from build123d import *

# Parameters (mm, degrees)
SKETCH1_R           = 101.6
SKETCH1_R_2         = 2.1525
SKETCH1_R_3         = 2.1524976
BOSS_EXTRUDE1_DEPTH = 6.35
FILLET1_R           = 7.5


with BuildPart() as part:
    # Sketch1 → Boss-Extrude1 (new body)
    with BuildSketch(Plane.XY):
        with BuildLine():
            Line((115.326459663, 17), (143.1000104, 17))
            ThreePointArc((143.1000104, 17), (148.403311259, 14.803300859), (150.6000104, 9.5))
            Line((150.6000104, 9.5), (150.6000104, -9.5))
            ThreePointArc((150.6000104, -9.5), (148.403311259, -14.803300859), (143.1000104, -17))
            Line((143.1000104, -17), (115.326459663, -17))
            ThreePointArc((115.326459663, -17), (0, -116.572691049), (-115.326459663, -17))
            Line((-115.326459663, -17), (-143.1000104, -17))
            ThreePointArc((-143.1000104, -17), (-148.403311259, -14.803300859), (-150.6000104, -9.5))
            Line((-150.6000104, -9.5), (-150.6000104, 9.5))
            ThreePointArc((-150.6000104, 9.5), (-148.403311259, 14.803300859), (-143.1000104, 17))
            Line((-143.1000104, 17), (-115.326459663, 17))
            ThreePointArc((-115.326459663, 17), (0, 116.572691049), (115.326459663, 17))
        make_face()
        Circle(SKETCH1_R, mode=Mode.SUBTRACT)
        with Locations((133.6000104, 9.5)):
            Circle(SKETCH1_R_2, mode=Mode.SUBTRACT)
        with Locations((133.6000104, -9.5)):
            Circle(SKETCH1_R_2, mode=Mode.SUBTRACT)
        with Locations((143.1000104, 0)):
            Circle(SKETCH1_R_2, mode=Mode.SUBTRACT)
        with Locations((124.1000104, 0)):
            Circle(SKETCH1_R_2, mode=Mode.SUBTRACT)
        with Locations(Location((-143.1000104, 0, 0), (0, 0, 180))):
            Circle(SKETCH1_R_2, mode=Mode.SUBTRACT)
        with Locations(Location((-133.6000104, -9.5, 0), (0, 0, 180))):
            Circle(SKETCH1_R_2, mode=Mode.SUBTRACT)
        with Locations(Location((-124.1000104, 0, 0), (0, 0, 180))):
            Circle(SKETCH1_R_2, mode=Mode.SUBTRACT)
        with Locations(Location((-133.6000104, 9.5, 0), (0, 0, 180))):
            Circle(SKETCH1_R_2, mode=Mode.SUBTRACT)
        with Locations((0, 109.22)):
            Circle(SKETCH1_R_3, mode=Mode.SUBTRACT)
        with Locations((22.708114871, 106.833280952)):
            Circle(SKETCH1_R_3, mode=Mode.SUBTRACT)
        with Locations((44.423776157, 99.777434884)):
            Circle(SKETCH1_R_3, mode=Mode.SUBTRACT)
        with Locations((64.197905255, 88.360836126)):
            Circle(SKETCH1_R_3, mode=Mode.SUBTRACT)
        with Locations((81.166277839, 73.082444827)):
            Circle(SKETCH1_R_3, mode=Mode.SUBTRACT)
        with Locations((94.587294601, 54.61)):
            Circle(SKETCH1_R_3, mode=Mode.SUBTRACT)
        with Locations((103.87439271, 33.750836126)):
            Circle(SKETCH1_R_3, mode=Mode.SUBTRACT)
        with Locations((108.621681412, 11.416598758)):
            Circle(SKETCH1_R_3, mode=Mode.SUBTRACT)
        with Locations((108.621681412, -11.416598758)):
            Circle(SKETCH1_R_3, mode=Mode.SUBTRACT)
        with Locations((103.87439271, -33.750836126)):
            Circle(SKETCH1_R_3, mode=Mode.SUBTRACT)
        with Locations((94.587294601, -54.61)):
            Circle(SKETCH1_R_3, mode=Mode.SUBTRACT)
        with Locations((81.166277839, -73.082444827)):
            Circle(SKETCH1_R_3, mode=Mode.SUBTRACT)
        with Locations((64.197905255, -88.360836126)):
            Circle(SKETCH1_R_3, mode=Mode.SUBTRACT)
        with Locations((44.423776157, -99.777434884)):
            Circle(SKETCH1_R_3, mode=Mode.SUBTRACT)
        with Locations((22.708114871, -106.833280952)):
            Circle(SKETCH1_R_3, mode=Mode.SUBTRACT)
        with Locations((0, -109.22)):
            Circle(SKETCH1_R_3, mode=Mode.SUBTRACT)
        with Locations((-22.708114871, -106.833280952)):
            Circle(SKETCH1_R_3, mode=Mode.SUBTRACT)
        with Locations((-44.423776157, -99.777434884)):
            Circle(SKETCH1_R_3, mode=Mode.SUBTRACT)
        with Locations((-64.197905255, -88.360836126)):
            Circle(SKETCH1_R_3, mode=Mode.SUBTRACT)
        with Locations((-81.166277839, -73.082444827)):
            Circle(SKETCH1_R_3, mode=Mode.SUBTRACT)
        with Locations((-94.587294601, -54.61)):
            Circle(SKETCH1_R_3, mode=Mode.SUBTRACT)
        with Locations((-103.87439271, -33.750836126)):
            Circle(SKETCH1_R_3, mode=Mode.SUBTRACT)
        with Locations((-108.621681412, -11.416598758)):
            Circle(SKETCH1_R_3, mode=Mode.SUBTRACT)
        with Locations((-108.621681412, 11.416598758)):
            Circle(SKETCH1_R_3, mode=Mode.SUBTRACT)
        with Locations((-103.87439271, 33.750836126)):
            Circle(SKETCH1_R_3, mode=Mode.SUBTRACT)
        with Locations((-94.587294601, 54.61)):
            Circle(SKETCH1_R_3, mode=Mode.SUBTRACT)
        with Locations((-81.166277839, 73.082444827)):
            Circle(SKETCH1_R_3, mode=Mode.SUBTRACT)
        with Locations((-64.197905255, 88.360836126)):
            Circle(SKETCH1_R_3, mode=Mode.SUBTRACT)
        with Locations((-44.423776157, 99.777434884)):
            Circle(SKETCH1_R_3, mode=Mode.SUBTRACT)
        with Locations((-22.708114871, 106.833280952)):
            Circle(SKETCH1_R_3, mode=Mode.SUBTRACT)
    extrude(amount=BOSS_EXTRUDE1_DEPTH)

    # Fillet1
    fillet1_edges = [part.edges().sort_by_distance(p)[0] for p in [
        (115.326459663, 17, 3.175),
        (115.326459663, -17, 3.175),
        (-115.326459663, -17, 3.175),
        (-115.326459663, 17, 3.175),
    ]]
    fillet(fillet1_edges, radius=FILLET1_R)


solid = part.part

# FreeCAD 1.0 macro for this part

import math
import FreeCAD as App
import Part
import Sketcher


def edges_at(feature, points):
    """Names of the edges that pass closest to the given points."""
    edges = feature.Shape.Edges
    near = lambda p: min(range(len(edges)), key=lambda i: edges[i].distToShape(Part.Vertex(*p))[0])
    return sorted({f"Edge{near(p) + 1}" for p in points})

doc = App.newDocument("Part")
body = doc.addObject("PartDesign::Body", "Body")

sketch1 = body.newObject("Sketcher::SketchObject", "Sketch")
sketch1.AttachmentSupport = (doc.getObject("XY_Plane"), [""])
sketch1.MapMode = "FlatFace"
sketch1.addGeometry(Part.LineSegment(App.Vector(143.1, 17, 0), App.Vector(115.3, 17, 0)), False)
sketch1.addGeometry(Part.ArcOfCircle(Part.Circle(App.Vector(0, 0, 0), App.Vector(0, 0, 1), 116.6), math.radians(8), math.radians(172)), False)
sketch1.addGeometry(Part.LineSegment(App.Vector(-115.3, 17, 0), App.Vector(-143.1, 17, 0)), False)
sketch1.addGeometry(Part.ArcOfCircle(Part.Circle(App.Vector(-143.1, 9.5, 0), App.Vector(0, 0, 1), 7.5), math.radians(90), math.radians(180)), False)
sketch1.addGeometry(Part.LineSegment(App.Vector(-150.6, 9.5, 0), App.Vector(-150.6, -9.5, 0)), False)
sketch1.addGeometry(Part.ArcOfCircle(Part.Circle(App.Vector(-143.1, -9.5, 0), App.Vector(0, 0, 1), 7.5), math.radians(180), math.radians(270)), False)
sketch1.addGeometry(Part.LineSegment(App.Vector(-143.1, -17, 0), App.Vector(-115.3, -17, 0)), False)
sketch1.addGeometry(Part.ArcOfCircle(Part.Circle(App.Vector(0, 0, 0), App.Vector(0, 0, 1), 116.6), math.radians(-172), math.radians(-8)), False)
sketch1.addGeometry(Part.LineSegment(App.Vector(115.3, -17, 0), App.Vector(143.1, -17, 0)), False)
sketch1.addGeometry(Part.ArcOfCircle(Part.Circle(App.Vector(143.1, -9.5, 0), App.Vector(0, 0, 1), 7.5), math.radians(-90), math.radians(0)), False)
sketch1.addGeometry(Part.LineSegment(App.Vector(150.6, -9.5, 0), App.Vector(150.6, 9.5, 0)), False)
sketch1.addGeometry(Part.ArcOfCircle(Part.Circle(App.Vector(143.1, 9.5, 0), App.Vector(0, 0, 1), 7.5), math.radians(0), math.radians(90)), False)
sketch1.addGeometry(Part.Circle(App.Vector(81.2, -73.1, 0), App.Vector(0, 0, 1), 2.2), False)
sketch1.addGeometry(Part.Circle(App.Vector(44.4, -99.8, 0), App.Vector(0, 0, 1), 2.2), False)
sketch1.addGeometry(Part.Circle(App.Vector(64.2, -88.4, 0), App.Vector(0, 0, 1), 2.2), False)
sketch1.addGeometry(Part.Circle(App.Vector(22.7, -106.8, 0), App.Vector(0, 0, 1), 2.2), False)
sketch1.addGeometry(Part.Circle(App.Vector(94.6, -54.6, 0), App.Vector(0, 0, 1), 2.2), False)
sketch1.addGeometry(Part.Circle(App.Vector(103.9, -33.8, 0), App.Vector(0, 0, 1), 2.2), False)
sketch1.addGeometry(Part.Circle(App.Vector(133.6, -9.5, 0), App.Vector(0, 0, 1), 2.2), False)
sketch1.addGeometry(Part.Circle(App.Vector(143.1, 0, 0), App.Vector(0, 0, 1), 2.2), False)
sketch1.addGeometry(Part.Circle(App.Vector(124.1, 0, 0), App.Vector(0, 0, 1), 2.2), False)
sketch1.addGeometry(Part.Circle(App.Vector(108.6, -11.4, 0), App.Vector(0, 0, 1), 2.2), False)
sketch1.addGeometry(Part.Circle(App.Vector(0, -109.2, 0), App.Vector(0, 0, 1), 2.2), False)
sketch1.addGeometry(Part.Circle(App.Vector(-22.7, -106.8, 0), App.Vector(0, 0, 1), 2.2), False)
sketch1.addGeometry(Part.Circle(App.Vector(-44.4, -99.8, 0), App.Vector(0, 0, 1), 2.2), False)
sketch1.addGeometry(Part.Circle(App.Vector(-64.2, -88.4, 0), App.Vector(0, 0, 1), 2.2), False)
sketch1.addGeometry(Part.Circle(App.Vector(-81.2, -73.1, 0), App.Vector(0, 0, 1), 2.2), False)
sketch1.addGeometry(Part.Circle(App.Vector(0, 0, 0), App.Vector(0, 0, 1), 101.6), False)
sketch1.addGeometry(Part.Circle(App.Vector(-94.6, -54.6, 0), App.Vector(0, 0, 1), 2.2), False)
sketch1.addGeometry(Part.Circle(App.Vector(-103.9, -33.8, 0), App.Vector(0, 0, 1), 2.2), False)
sketch1.addGeometry(Part.Circle(App.Vector(-108.6, -11.4, 0), App.Vector(0, 0, 1), 2.2), False)
sketch1.addGeometry(Part.Circle(App.Vector(-124.1, 0, 0), App.Vector(0, 0, 1), 2.2), False)
sketch1.addGeometry(Part.Circle(App.Vector(-133.6, -9.5, 0), App.Vector(0, 0, 1), 2.2), False)
sketch1.addGeometry(Part.Circle(App.Vector(-143.1, 0, 0), App.Vector(0, 0, 1), 2.2), False)
sketch1.addGeometry(Part.Circle(App.Vector(133.6, 9.5, 0), App.Vector(0, 0, 1), 2.2), False)
sketch1.addGeometry(Part.Circle(App.Vector(108.6, 11.4, 0), App.Vector(0, 0, 1), 2.2), False)
sketch1.addGeometry(Part.Circle(App.Vector(103.9, 33.8, 0), App.Vector(0, 0, 1), 2.2), False)
sketch1.addGeometry(Part.Circle(App.Vector(94.6, 54.6, 0), App.Vector(0, 0, 1), 2.2), False)
sketch1.addGeometry(Part.Circle(App.Vector(81.2, 73.1, 0), App.Vector(0, 0, 1), 2.2), False)
sketch1.addGeometry(Part.Circle(App.Vector(64.2, 88.4, 0), App.Vector(0, 0, 1), 2.2), False)
sketch1.addGeometry(Part.Circle(App.Vector(44.4, 99.8, 0), App.Vector(0, 0, 1), 2.2), False)
sketch1.addGeometry(Part.Circle(App.Vector(22.7, 106.8, 0), App.Vector(0, 0, 1), 2.2), False)
sketch1.addGeometry(Part.Circle(App.Vector(-108.6, 11.4, 0), App.Vector(0, 0, 1), 2.2), False)
sketch1.addGeometry(Part.Circle(App.Vector(-133.6, 9.5, 0), App.Vector(0, 0, 1), 2.2), False)
sketch1.addGeometry(Part.Circle(App.Vector(-103.9, 33.8, 0), App.Vector(0, 0, 1), 2.2), False)
sketch1.addGeometry(Part.Circle(App.Vector(-94.6, 54.6, 0), App.Vector(0, 0, 1), 2.2), False)
sketch1.addGeometry(Part.Circle(App.Vector(0, 109.2, 0), App.Vector(0, 0, 1), 2.2), False)
sketch1.addGeometry(Part.Circle(App.Vector(-22.7, 106.8, 0), App.Vector(0, 0, 1), 2.2), False)
sketch1.addGeometry(Part.Circle(App.Vector(-64.2, 88.4, 0), App.Vector(0, 0, 1), 2.2), False)
sketch1.addGeometry(Part.Circle(App.Vector(-44.4, 99.8, 0), App.Vector(0, 0, 1), 2.2), False)
sketch1.addGeometry(Part.Circle(App.Vector(-81.2, 73.1, 0), App.Vector(0, 0, 1), 2.2), False)
sketch1.addConstraint(Sketcher.Constraint("Coincident", 0, 2, 1, 1))
sketch1.addConstraint(Sketcher.Constraint("Coincident", 1, 2, 2, 1))
sketch1.addConstraint(Sketcher.Constraint("Tangent", 2, 2, 3, 1))
sketch1.addConstraint(Sketcher.Constraint("Tangent", 3, 2, 4, 1))
sketch1.addConstraint(Sketcher.Constraint("Tangent", 4, 2, 5, 1))
sketch1.addConstraint(Sketcher.Constraint("Tangent", 5, 2, 6, 1))
sketch1.addConstraint(Sketcher.Constraint("Coincident", 6, 2, 7, 1))
sketch1.addConstraint(Sketcher.Constraint("Coincident", 7, 2, 8, 1))
sketch1.addConstraint(Sketcher.Constraint("Tangent", 8, 2, 9, 1))
sketch1.addConstraint(Sketcher.Constraint("Tangent", 9, 2, 10, 1))
sketch1.addConstraint(Sketcher.Constraint("Tangent", 10, 2, 11, 1))
sketch1.addConstraint(Sketcher.Constraint("Tangent", 11, 2, 0, 1))
sketch1.addConstraint(Sketcher.Constraint("Horizontal", 0))
sketch1.addConstraint(Sketcher.Constraint("Horizontal", 2))
sketch1.addConstraint(Sketcher.Constraint("Vertical", 4))
sketch1.addConstraint(Sketcher.Constraint("Horizontal", 6))
sketch1.addConstraint(Sketcher.Constraint("Horizontal", 8))
sketch1.addConstraint(Sketcher.Constraint("Vertical", 10))
sketch1.addConstraint(Sketcher.Constraint("Coincident", 1, 3, -1, 1))
sketch1.addConstraint(Sketcher.Constraint("Coincident", 7, 3, -1, 1))
sketch1.addConstraint(Sketcher.Constraint("Coincident", 27, 3, -1, 1))
sketch1.addConstraint(Sketcher.Constraint("Equal", 3, 5))
sketch1.addConstraint(Sketcher.Constraint("Equal", 1, 7))
sketch1.addConstraint(Sketcher.Constraint("Equal", 5, 9))
sketch1.addConstraint(Sketcher.Constraint("Equal", 9, 11))
sketch1.addConstraint(Sketcher.Constraint("Equal", 12, 13))
sketch1.addConstraint(Sketcher.Constraint("Equal", 13, 14))
sketch1.addConstraint(Sketcher.Constraint("Equal", 14, 15))
sketch1.addConstraint(Sketcher.Constraint("Equal", 15, 16))
sketch1.addConstraint(Sketcher.Constraint("Equal", 16, 17))
sketch1.addConstraint(Sketcher.Constraint("Equal", 18, 19))
sketch1.addConstraint(Sketcher.Constraint("Equal", 19, 20))
sketch1.addConstraint(Sketcher.Constraint("Equal", 17, 21))
sketch1.addConstraint(Sketcher.Constraint("Equal", 21, 22))
sketch1.addConstraint(Sketcher.Constraint("Equal", 22, 23))
sketch1.addConstraint(Sketcher.Constraint("Equal", 23, 24))
sketch1.addConstraint(Sketcher.Constraint("Equal", 24, 25))
sketch1.addConstraint(Sketcher.Constraint("Equal", 25, 26))
sketch1.addConstraint(Sketcher.Constraint("Equal", 26, 28))
sketch1.addConstraint(Sketcher.Constraint("Equal", 28, 29))
sketch1.addConstraint(Sketcher.Constraint("Equal", 29, 30))
sketch1.addConstraint(Sketcher.Constraint("Equal", 20, 31))
sketch1.addConstraint(Sketcher.Constraint("Equal", 31, 32))
sketch1.addConstraint(Sketcher.Constraint("Equal", 32, 33))
sketch1.addConstraint(Sketcher.Constraint("Equal", 33, 34))
sketch1.addConstraint(Sketcher.Constraint("Equal", 30, 35))
sketch1.addConstraint(Sketcher.Constraint("Equal", 35, 36))
sketch1.addConstraint(Sketcher.Constraint("Equal", 36, 37))
sketch1.addConstraint(Sketcher.Constraint("Equal", 37, 38))
sketch1.addConstraint(Sketcher.Constraint("Equal", 38, 39))
sketch1.addConstraint(Sketcher.Constraint("Equal", 39, 40))
sketch1.addConstraint(Sketcher.Constraint("Equal", 40, 41))
sketch1.addConstraint(Sketcher.Constraint("Equal", 41, 42))
sketch1.addConstraint(Sketcher.Constraint("Equal", 34, 43))
sketch1.addConstraint(Sketcher.Constraint("Equal", 42, 44))
sketch1.addConstraint(Sketcher.Constraint("Equal", 44, 45))
sketch1.addConstraint(Sketcher.Constraint("Equal", 45, 46))
sketch1.addConstraint(Sketcher.Constraint("Equal", 46, 47))
sketch1.addConstraint(Sketcher.Constraint("Equal", 47, 48))
sketch1.addConstraint(Sketcher.Constraint("Equal", 48, 49))
sketch1.addConstraint(Sketcher.Constraint("Equal", 49, 50))
sketch1.addConstraint(Sketcher.Constraint("Symmetric", 3, 3, 9, 3, -1, 1))
sketch1.addConstraint(Sketcher.Constraint("Symmetric", 20, 3, 31, 3, -1, 1))
sketch1.addConstraint(Sketcher.Constraint("Symmetric", 19, 3, 33, 3, -1, 1))
sketch1.addConstraint(Sketcher.Constraint("Symmetric", 32, 3, 34, 3, -1, 1))
sketch1.addConstraint(Sketcher.Constraint("Symmetric", 30, 3, 35, 3, -1, 1))
sketch1.addConstraint(Sketcher.Constraint("Symmetric", 29, 3, 36, 3, -1, 1))
sketch1.addConstraint(Sketcher.Constraint("Symmetric", 28, 3, 37, 3, -1, 1))
sketch1.addConstraint(Sketcher.Constraint("Symmetric", 26, 3, 38, 3, -1, 1))
sketch1.addConstraint(Sketcher.Constraint("Symmetric", 25, 3, 39, 3, -1, 1))
sketch1.addConstraint(Sketcher.Constraint("Symmetric", 24, 3, 40, 3, -1, 1))
sketch1.addConstraint(Sketcher.Constraint("Symmetric", 23, 3, 41, 3, -1, 1))
sketch1.addConstraint(Sketcher.Constraint("Symmetric", 21, 3, 42, 3, -1, 1))
sketch1.addConstraint(Sketcher.Constraint("Symmetric", 18, 3, 43, 3, -1, 1))
sketch1.addConstraint(Sketcher.Constraint("Symmetric", 17, 3, 44, 3, -1, 1))
sketch1.addConstraint(Sketcher.Constraint("Symmetric", 16, 3, 45, 3, -1, 1))
sketch1.addConstraint(Sketcher.Constraint("Symmetric", 22, 3, 46, 3, -1, 1))
sketch1.addConstraint(Sketcher.Constraint("Symmetric", 15, 3, 47, 3, -1, 1))
sketch1.addConstraint(Sketcher.Constraint("Symmetric", 14, 3, 48, 3, -1, 1))
sketch1.addConstraint(Sketcher.Constraint("Symmetric", 13, 3, 49, 3, -1, 1))
sketch1.addConstraint(Sketcher.Constraint("Symmetric", 12, 3, 50, 3, -1, 1))
sketch1.addConstraint(Sketcher.Constraint("Symmetric", 15, 3, 23, 3, -2))
sketch1.addConstraint(Sketcher.Constraint("Symmetric", 13, 3, 24, 3, -2))
sketch1.addConstraint(Sketcher.Constraint("Symmetric", 14, 3, 25, 3, -2))
sketch1.addConstraint(Sketcher.Constraint("Symmetric", 12, 3, 26, 3, -2))
sketch1.addConstraint(Sketcher.Constraint("Symmetric", 16, 3, 28, 3, -2))
sketch1.addConstraint(Sketcher.Constraint("Symmetric", 17, 3, 29, 3, -2))
sketch1.addConstraint(Sketcher.Constraint("Symmetric", 21, 3, 30, 3, -2))
sketch1.addConstraint(Sketcher.Constraint("Symmetric", 18, 3, 32, 3, -2))
sketch1.addConstraint(Sketcher.Constraint("PointOnObject", 19, 3, -1))
sketch1.addConstraint(Sketcher.Constraint("PointOnObject", 20, 3, -1))
sketch1.addConstraint(Sketcher.Constraint("PointOnObject", 22, 3, -2))
sketch1.addConstraint(Sketcher.Constraint("Horizontal", 5, 3, 9, 3))
sketch1.addConstraint(Sketcher.Constraint("Horizontal", 3, 3, 11, 3))
sketch1.addConstraint(Sketcher.Constraint("Horizontal", 9, 3, 18, 3))
sketch1.addConstraint(Sketcher.Constraint("Vertical", 11, 3, 19, 3))
sketch1.addConstraint(Sketcher.Constraint("Diameter", 27, 203.2))
sketch1.addConstraint(Sketcher.Constraint("Radius", 3, 7.5))
sketch1.addConstraint(Sketcher.Constraint("DistanceY", 4, 2, 4, 1, 19.0))
sketch1.addConstraint(Sketcher.Constraint("Diameter", 18, 4.305))
sketch1.addConstraint(Sketcher.Constraint("DistanceX", 20, 3, 19, 3, 19.0))
sketch1.addConstraint(Sketcher.Constraint("DistanceX", 3, 2, 43, 3, 17.0))
sketch1.addConstraint(Sketcher.Constraint("DistanceY", 16, 3, -1, 1, 54.61))
sketch1.addConstraint(Sketcher.Constraint("DistanceY", 22, 3, -1, 1, 109.22))
sketch1.addConstraint(Sketcher.Constraint("Radius", 1, 116.572691))
sketch1.addConstraint(Sketcher.Constraint("DistanceY", 14, 3, 17, 3, 54.61))
sketch1.addConstraint(Sketcher.Constraint("Diameter", 12, 4.304995))
sketch1.addConstraint(Sketcher.Constraint("DistanceX", 0, 2, 0, 1, 27.773551))
sketch1.addConstraint(Sketcher.Constraint("DistanceY", 21, 3, -1, 1, 11.416599))
sketch1.addConstraint(Sketcher.Constraint("DistanceX", 13, 3, 12, 3, 36.742502))
sketch1.addConstraint(Sketcher.Constraint("DistanceY", 13, 3, 14, 3, 11.416599))
sketch1.addConstraint(Sketcher.Constraint("DistanceX", 16, 3, 17, 3, 9.287098))
sketch1.addConstraint(Sketcher.Constraint("DistanceY", 15, 3, -1, 1, 106.833281))
sketch1.addConstraint(Sketcher.Constraint("DistanceX", -1, 1, 21, 3, 108.621681))
sketch1.addConstraint(Sketcher.Constraint("DistanceX", 5, 3, 12, 3, 224.266288))
sketch1.addConstraint(Sketcher.Constraint("DistanceY", 13, 3, 12, 3, 26.69499))
sketch1.addConstraint(Sketcher.Constraint("DistanceX", 13, 3, 14, 3, 19.774129))
sketch1.addConstraint(Sketcher.Constraint("DistanceX", 15, 3, 13, 3, 21.715661))
sketch1.addConstraint(Sketcher.Constraint("DistanceX", 14, 3, 16, 3, 30.389389))
sketch1.addConstraint(Sketcher.Constraint("DistanceY", 12, 3, -1, 1, 73.082445))
pad1 = body.newObject("PartDesign::Pad", "Pad")
pad1.Profile = sketch1
pad1.Length = 6.35
doc.recompute()

fillet = body.newObject("PartDesign::Fillet", "Fillet")
fillet.Base = (pad1, edges_at(pad1, [
    (115.326, 17, 3.175),
    (115.326, -17, 3.175),
    (-115.326, -17, 3.175),
    (-115.326, 17, 3.175),
]))
fillet.Radius = 7.5

doc.recompute()
